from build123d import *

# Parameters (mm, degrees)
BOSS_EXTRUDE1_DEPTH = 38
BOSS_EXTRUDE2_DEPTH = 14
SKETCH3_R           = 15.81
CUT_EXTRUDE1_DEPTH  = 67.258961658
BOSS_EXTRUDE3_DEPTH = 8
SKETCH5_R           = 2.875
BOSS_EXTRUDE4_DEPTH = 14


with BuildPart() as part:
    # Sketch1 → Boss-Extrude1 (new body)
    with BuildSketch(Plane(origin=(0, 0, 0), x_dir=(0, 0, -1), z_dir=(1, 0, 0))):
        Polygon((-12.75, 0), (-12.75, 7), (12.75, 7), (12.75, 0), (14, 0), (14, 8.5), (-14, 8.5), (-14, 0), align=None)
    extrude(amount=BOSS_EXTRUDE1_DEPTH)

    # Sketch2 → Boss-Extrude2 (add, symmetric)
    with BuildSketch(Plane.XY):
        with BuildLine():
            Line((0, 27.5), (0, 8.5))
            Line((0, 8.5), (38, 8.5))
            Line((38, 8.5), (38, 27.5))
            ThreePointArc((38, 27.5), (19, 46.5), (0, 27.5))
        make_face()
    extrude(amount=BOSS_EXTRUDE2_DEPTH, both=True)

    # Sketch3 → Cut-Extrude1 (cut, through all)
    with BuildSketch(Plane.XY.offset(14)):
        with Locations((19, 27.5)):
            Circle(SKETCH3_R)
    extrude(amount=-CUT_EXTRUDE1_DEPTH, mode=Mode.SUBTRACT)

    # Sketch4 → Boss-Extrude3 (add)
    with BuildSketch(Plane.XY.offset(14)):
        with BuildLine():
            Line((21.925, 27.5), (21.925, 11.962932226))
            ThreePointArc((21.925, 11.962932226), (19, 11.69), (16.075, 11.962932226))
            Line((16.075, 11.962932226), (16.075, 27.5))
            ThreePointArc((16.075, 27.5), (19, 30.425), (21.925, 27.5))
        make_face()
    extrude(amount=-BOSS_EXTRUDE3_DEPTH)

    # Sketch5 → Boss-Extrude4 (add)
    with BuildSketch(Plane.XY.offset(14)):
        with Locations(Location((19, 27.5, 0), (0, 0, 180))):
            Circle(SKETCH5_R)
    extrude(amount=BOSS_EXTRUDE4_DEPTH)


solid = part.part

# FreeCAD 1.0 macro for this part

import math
import FreeCAD as App
import Part
import Sketcher
from FreeCAD import Vector


def add_polygon(sketch, points):
    """Adds a closed chain of lines whose ends are joined by coincident constraints."""
    first, n = sketch.GeometryCount, len(points)
    for a, b in zip(points, points[1:] + points[:1]):
        sketch.addGeometry(Part.LineSegment(App.Vector(*a, 0), App.Vector(*b, 0)), False)
    for i in range(n):
        sketch.addConstraint(Sketcher.Constraint("Coincident", first + i, 2, first + (i + 1) % n, 1))

doc = App.newDocument("Part")
body = doc.addObject("PartDesign::Body", "Body")

# Sketch on YZ plane
sketch1 = body.newObject("Sketcher::SketchObject", "Sketch")
sketch1.AttachmentSupport = (doc.getObject("YZ_Plane"), [""])
sketch1.MapMode = "FlatFace"
add_polygon(sketch1, [(0, 12.75), (7, 12.75), (7, -12.75), (0, -12.75), (0, -14), (8.5, -14), (8.5, 14), (0, 14)])  # lines 0-7
sketch1.addConstraint([
    Sketcher.Constraint("Horizontal", 0),
    Sketcher.Constraint("Vertical", 1),
    Sketcher.Constraint("Horizontal", 2),
    Sketcher.Constraint("Vertical", 3),
    Sketcher.Constraint("Horizontal", 4),
    Sketcher.Constraint("Vertical", 5),
    Sketcher.Constraint("Horizontal", 6),
    Sketcher.Constraint("Vertical", 7),
    Sketcher.Constraint("Symmetric", 3, 2, 6, 2, -1, 1),
    Sketcher.Constraint("Symmetric", 2, 2, 7, 2, -1),
    Sketcher.Constraint("DistanceX", 0, 1, 0, 2, 7.0),
    Sketcher.Constraint("DistanceY", 5, 1, 5, 2, 28.0),
    Sketcher.Constraint("DistanceX", 4, 1, 4, 2, 8.5),
    Sketcher.Constraint("DistanceY", 1, 2, 1, 1, 25.5),
])
pad1 = body.newObject("PartDesign::Pad", "Pad")
pad1.Profile = sketch1
pad1.Length = 38

# Sketch on XY plane
sketch2 = body.newObject("Sketcher::SketchObject", "Sketch001")
sketch2.AttachmentSupport = (doc.getObject("XY_Plane"), [""])
sketch2.MapMode = "FlatFace"
sketch2.addGeometry([
    Part.LineSegment(Vector(0, 27.5, 0), Vector(0, 8.5, 0)),
    Part.LineSegment(Vector(0, 8.5, 0), Vector(38, 8.5, 0)),
    Part.LineSegment(Vector(38, 8.5, 0), Vector(38, 27.5, 0)),
    Part.ArcOfCircle(Part.Circle(Vector(19, 27.5, 0), Vector(0, 0, 1), 19), math.radians(0), math.radians(180)),
], False)
sketch2.addConstraint([
    Sketcher.Constraint("Coincident", 0, 2, 1, 1),
    Sketcher.Constraint("Coincident", 1, 2, 2, 1),
    Sketcher.Constraint("Tangent", 2, 2, 3, 1),
    Sketcher.Constraint("Tangent", 3, 2, 0, 1),
    Sketcher.Constraint("Vertical", 0),
    Sketcher.Constraint("Horizontal", 1),
    Sketcher.Constraint("Vertical", 2),
    Sketcher.Constraint("PointOnObject", 0, 2, -2),
    Sketcher.Constraint("Radius", 3, 19.0),
    Sketcher.Constraint("DistanceY", 0, 2, 0, 1, 19.0),
    Sketcher.Constraint("DistanceY", -1, 1, 3, 3, 27.5),
])
pad2 = body.newObject("PartDesign::Pad", "Pad001")
pad2.Profile = sketch2
pad2.Length = 28
pad2.Midplane = True

# Sketch on XY plane
sketch3 = body.newObject("Sketcher::SketchObject", "Sketch002")
sketch3.AttachmentSupport = (doc.getObject("XY_Plane"), [""])
sketch3.MapMode = "FlatFace"
sketch3.AttachmentOffset = App.Placement(Vector(0, 0, 14), App.Rotation())
sketch3.addGeometry(Part.Circle(Vector(19, 27.5, 0), Vector(0, 0, 1), 15.81), False)
sketch3.addConstraint([
    Sketcher.Constraint("Diameter", 0, 31.62),
    Sketcher.Constraint("DistanceX", -1, 1, 0, 3, 19.0),
    Sketcher.Constraint("DistanceY", -1, 1, 0, 3, 27.5),
])
pocket1 = body.newObject("PartDesign::Pocket", "Pocket")
pocket1.Profile = sketch3
pocket1.Type = "ThroughAll"

# Sketch on XY plane
sketch4 = body.newObject("Sketcher::SketchObject", "Sketch003")
sketch4.AttachmentSupport = (doc.getObject("XY_Plane"), [""])
sketch4.MapMode = "FlatFace"
sketch4.AttachmentOffset = App.Placement(Vector(0, 0, 14), App.Rotation())
sketch4.addGeometry([
    Part.LineSegment(Vector(21.925, 11.962932, 0), Vector(21.925, 27.5, 0)),
    Part.ArcOfCircle(Part.Circle(Vector(19, 27.5, 0), Vector(0, 0, 1), 2.925), math.radians(0), math.radians(180)),
    Part.LineSegment(Vector(16.075, 27.5, 0), Vector(16.075, 11.962932, 0)),
    Part.ArcOfCircle(Part.Circle(Vector(19, 27.5, 0), Vector(0, 0, 1), 15.81), math.radians(-100.661686), math.radians(-79.338314)),
], False)
sketch4.addConstraint([
    Sketcher.Constraint("Tangent", 0, 2, 1, 1),
    Sketcher.Constraint("Tangent", 1, 2, 2, 1),
    Sketcher.Constraint("Coincident", 2, 2, 3, 1),
    Sketcher.Constraint("Coincident", 3, 2, 0, 1),
    Sketcher.Constraint("Vertical", 0),
    Sketcher.Constraint("Vertical", 2),
    Sketcher.Constraint("Coincident", 3, 3, 1, 3),
    Sketcher.Constraint("Radius", 3, 15.81),
    Sketcher.Constraint("DistanceX", -1, 1, 1, 3, 19.0),
    Sketcher.Constraint("Radius", 1, 2.925),
    Sketcher.Constraint("DistanceY", -1, 1, 1, 3, 27.5),
])
pad3 = body.newObject("PartDesign::Pad", "Pad002")
pad3.Profile = sketch4
pad3.Length = 8
pad3.Reversed = True

# Sketch on XY plane
sketch5 = body.newObject("Sketcher::SketchObject", "Sketch004")
sketch5.AttachmentSupport = (doc.getObject("XY_Plane"), [""])
sketch5.MapMode = "FlatFace"
sketch5.AttachmentOffset = App.Placement(Vector(0, 0, 14), App.Rotation())
sketch5.addGeometry(Part.Circle(Vector(19, 27.5, 0), Vector(0, 0, 1), 2.875), False)
sketch5.addConstraint([
    Sketcher.Constraint("Diameter", 0, 5.75),
    Sketcher.Constraint("DistanceX", -1, 1, 0, 3, 19.0),
    Sketcher.Constraint("DistanceY", -1, 1, 0, 3, 27.5),
])
pad4 = body.newObject("PartDesign::Pad", "Pad003")
pad4.Profile = sketch5
pad4.Length = 14

doc.recompute()
